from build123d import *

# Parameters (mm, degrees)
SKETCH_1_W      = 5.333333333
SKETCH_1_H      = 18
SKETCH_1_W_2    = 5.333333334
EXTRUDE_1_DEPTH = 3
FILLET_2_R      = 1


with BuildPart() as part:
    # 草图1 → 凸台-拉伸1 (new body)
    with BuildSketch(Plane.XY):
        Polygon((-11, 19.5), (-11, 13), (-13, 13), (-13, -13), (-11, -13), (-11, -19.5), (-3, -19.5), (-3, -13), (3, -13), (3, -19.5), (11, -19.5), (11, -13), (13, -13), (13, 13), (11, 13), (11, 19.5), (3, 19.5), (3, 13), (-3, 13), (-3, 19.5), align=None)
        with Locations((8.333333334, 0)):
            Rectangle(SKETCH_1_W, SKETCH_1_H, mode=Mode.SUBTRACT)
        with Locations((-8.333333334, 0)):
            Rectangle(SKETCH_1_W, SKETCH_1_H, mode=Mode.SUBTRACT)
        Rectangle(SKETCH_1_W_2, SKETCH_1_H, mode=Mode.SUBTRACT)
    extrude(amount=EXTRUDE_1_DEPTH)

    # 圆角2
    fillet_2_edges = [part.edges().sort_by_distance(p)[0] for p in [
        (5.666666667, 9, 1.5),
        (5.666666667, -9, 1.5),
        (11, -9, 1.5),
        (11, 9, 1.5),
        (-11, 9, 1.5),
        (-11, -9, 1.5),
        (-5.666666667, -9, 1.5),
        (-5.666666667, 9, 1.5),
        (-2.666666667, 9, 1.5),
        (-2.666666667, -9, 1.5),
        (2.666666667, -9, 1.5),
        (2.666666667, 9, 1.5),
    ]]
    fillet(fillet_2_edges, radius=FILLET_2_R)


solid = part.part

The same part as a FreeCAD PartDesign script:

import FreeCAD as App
import Part
import Sketcher
from FreeCAD import Vector


def edges_at(feature, points):
    """Names of the edges that pass closest to the given points."""
    edges = feature.Shape.Edges
    near = lambda p: min(range(len(edges)), key=lambda i: edges[i].distToShape(Part.Vertex(*p))[0])
    return sorted({f"Edge{near(p) + 1}" for p in points})


def add_polygon(sketch, points):
    """Adds a closed chain of lines whose ends are joined by coincident constraints."""
    first, n = sketch.GeometryCount, len(points)
    for a, b in zip(points, points[1:] + points[:1]):
        sketch.addGeometry(Part.LineSegment(App.Vector(*a, 0), App.Vector(*b, 0)), False)
    for i in range(n):
        sketch.addConstraint(Sketcher.Constraint("Coincident", first + i, 2, first + (i + 1) % n, 1))

doc = App.newDocument("Part")
params = doc.addObject("Spreadsheet::Sheet", "Params")
for row, (alias, value) in enumerate([
    ("sketch1_width", "2 mm"),
    ("sketch1_width2", "8 mm"),
    ("sketch1_width3", "6 mm"),
    ("sketch1_height", "26 mm"),
    ("sketch1_height2", "18 mm"),
    ("pad1_length", "3 mm"),
    ("fillet_radius", "1 mm"),
], start=1):
    params.set(f"A{row}", alias)
    params.set(f"B{row}", "=" + value)
    params.setAlias(f"B{row}", alias)

body = doc.addObject("PartDesign::Body", "Body")

# Sketch on XY plane
sketch1 = doc.addObject("Sketcher::SketchObject", "Sketch")
body.addObject(sketch1)
sketch1.AttachmentSupport = (doc.XY_Plane, [""])
sketch1.MapMode = "FlatFace"
add_polygon(sketch1, [(-11, 19.5), (-11, 13), (-13, 13), (-13, -13), (-11, -13), (-11, -19.5), (-3, -19.5), (-3, -13), (3, -13), (3, -19.5), (11, -19.5), (11, -13), (13, -13), (13, 13), (11, 13), (11, 19.5), (3, 19.5), (3, 13), (-3, 13), (-3, 19.5)])  # lines 0-19
add_polygon(sketch1, [(-5.7, -9), (-11, -9), (-11, 9), (-5.7, 9)])  # lines 20-23
add_polygon(sketch1, [(2.7, -9), (-2.7, -9), (-2.7, 9), (2.7, 9)])  # lines 24-27
add_polygon(sketch1, [(11, -9), (5.7, -9), (5.7, 9), (11, 9)])  # lines 28-31
sketch1.addConstraint([
    Sketcher.Constraint("Vertical", 0),
    Sketcher.Constraint("Horizontal", 1),
    Sketcher.Constraint("Vertical", 2),
    Sketcher.Constraint("Horizontal", 3),
    Sketcher.Constraint("Vertical", 4),
    Sketcher.Constraint("Horizontal", 5),
    Sketcher.Constraint("Vertical", 6),
    Sketcher.Constraint("Horizontal", 7),
    Sketcher.Constraint("Vertical", 8),
    Sketcher.Constraint("Horizontal", 9),
    Sketcher.Constraint("Vertical", 10),
    Sketcher.Constraint("Horizontal", 11),
    Sketcher.Constraint("Vertical", 12),
    Sketcher.Constraint("Horizontal", 13),
    Sketcher.Constraint("Vertical", 14),
    Sketcher.Constraint("Horizontal", 15),
    Sketcher.Constraint("Vertical", 16),
    Sketcher.Constraint("Horizontal", 17),
    Sketcher.Constraint("Vertical", 18),
    Sketcher.Constraint("Horizontal", 19),
    Sketcher.Constraint("Horizontal", 20),
    Sketcher.Constraint("Vertical", 21),
    Sketcher.Constraint("Horizontal", 22),
    Sketcher.Constraint("Vertical", 23),
    Sketcher.Constraint("Horizontal", 24),
    Sketcher.Constraint("Vertical", 25),
    Sketcher.Constraint("Horizontal", 26),
    Sketcher.Constraint("Vertical", 27),
    Sketcher.Constraint("Horizontal", 28),
    Sketcher.Constraint("Vertical", 29),
    Sketcher.Constraint("Horizontal", 30),
    Sketcher.Constraint("Vertical", 31),
    Sketcher.Constraint("Symmetric", 0, 2, 10, 2, -1, 1),
    Sketcher.Constraint("Symmetric", 2, 2, 12, 2, -1, 1),
    Sketcher.Constraint("Symmetric", 4, 2, 14, 2, -1, 1),
    Sketcher.Constraint("Symmetric", 6, 2, 16, 2, -1, 1),
    Sketcher.Constraint("Symmetric", 8, 2, 18, 2, -1, 1),
    Sketcher.Constraint("Symmetric", 24, 2, 26, 2, -1, 1),
    Sketcher.Constraint("Symmetric", 22, 2, 28, 2, -1, 1),
    Sketcher.Constraint("Symmetric", 20, 2, 30, 2, -1, 1),
    Sketcher.Constraint("Symmetric", 5, 2, 8, 2, -2),
    Sketcher.Constraint("Symmetric", 3, 2, 10, 2, -2),
    Sketcher.Constraint("Horizontal", 3, 2, 6, 2),
    Sketcher.Constraint("Horizontal", 23, 2, 24, 2),
    Sketcher.Constraint("Horizontal", 22, 2, 25, 2),
    Sketcher.Constraint("Vertical", 19, 2, 20, 2),
    Sketcher.Constraint("Equal", 22, 24),
    Sketcher.Constraint("DistanceX", 1, 2, 1, 1, 2.0),
    Sketcher.Constraint("DistanceX", 5, 1, 5, 2, 8.0),
    Sketcher.Constraint("DistanceX", 7, 1, 7, 2, 6.0),
    Sketcher.Constraint("DistanceY", 2, 2, 2, 1, 26.0),
    Sketcher.Constraint("DistanceY", 21, 1, 21, 2, 18.0),
    Sketcher.Constraint("DistanceY", 0, 2, 0, 1, 6.5),
    Sketcher.Constraint("DistanceX", 23, 2, 24, 2, 3.0),
])
sketch1.setExpression("Constraints[79]", "Params.sketch1_width")
sketch1.setExpression("Constraints[80]", "Params.sketch1_width2")
sketch1.setExpression("Constraints[81]", "Params.sketch1_width3")
sketch1.setExpression("Constraints[82]", "Params.sketch1_height")
sketch1.setExpression("Constraints[83]", "Params.sketch1_height2")
pad1 = doc.addObject("PartDesign::Pad", "Pad")
body.addObject(pad1)
pad1.Profile = sketch1
pad1.setExpression("Length", "Params.pad1_length")
doc.recompute()

fillet = doc.addObject("PartDesign::Fillet", "Fillet")
body.addObject(fillet)
fillet.Base = (pad1, edges_at(pad1, [
    (5.667, 9, 1.5),
    (5.667, -9, 1.5),
    (11, -9, 1.5),
    (11, 9, 1.5),
    (-11, 9, 1.5),
    (-11, -9, 1.5),
    (-5.667, -9, 1.5),
    (-5.667, 9, 1.5),
    (-2.667, 9, 1.5),
    (-2.667, -9, 1.5),
    (2.667, -9, 1.5),
    (2.667, 9, 1.5),
]))
fillet.setExpression("Radius", "Params.fillet_radius")

doc.recompute()
